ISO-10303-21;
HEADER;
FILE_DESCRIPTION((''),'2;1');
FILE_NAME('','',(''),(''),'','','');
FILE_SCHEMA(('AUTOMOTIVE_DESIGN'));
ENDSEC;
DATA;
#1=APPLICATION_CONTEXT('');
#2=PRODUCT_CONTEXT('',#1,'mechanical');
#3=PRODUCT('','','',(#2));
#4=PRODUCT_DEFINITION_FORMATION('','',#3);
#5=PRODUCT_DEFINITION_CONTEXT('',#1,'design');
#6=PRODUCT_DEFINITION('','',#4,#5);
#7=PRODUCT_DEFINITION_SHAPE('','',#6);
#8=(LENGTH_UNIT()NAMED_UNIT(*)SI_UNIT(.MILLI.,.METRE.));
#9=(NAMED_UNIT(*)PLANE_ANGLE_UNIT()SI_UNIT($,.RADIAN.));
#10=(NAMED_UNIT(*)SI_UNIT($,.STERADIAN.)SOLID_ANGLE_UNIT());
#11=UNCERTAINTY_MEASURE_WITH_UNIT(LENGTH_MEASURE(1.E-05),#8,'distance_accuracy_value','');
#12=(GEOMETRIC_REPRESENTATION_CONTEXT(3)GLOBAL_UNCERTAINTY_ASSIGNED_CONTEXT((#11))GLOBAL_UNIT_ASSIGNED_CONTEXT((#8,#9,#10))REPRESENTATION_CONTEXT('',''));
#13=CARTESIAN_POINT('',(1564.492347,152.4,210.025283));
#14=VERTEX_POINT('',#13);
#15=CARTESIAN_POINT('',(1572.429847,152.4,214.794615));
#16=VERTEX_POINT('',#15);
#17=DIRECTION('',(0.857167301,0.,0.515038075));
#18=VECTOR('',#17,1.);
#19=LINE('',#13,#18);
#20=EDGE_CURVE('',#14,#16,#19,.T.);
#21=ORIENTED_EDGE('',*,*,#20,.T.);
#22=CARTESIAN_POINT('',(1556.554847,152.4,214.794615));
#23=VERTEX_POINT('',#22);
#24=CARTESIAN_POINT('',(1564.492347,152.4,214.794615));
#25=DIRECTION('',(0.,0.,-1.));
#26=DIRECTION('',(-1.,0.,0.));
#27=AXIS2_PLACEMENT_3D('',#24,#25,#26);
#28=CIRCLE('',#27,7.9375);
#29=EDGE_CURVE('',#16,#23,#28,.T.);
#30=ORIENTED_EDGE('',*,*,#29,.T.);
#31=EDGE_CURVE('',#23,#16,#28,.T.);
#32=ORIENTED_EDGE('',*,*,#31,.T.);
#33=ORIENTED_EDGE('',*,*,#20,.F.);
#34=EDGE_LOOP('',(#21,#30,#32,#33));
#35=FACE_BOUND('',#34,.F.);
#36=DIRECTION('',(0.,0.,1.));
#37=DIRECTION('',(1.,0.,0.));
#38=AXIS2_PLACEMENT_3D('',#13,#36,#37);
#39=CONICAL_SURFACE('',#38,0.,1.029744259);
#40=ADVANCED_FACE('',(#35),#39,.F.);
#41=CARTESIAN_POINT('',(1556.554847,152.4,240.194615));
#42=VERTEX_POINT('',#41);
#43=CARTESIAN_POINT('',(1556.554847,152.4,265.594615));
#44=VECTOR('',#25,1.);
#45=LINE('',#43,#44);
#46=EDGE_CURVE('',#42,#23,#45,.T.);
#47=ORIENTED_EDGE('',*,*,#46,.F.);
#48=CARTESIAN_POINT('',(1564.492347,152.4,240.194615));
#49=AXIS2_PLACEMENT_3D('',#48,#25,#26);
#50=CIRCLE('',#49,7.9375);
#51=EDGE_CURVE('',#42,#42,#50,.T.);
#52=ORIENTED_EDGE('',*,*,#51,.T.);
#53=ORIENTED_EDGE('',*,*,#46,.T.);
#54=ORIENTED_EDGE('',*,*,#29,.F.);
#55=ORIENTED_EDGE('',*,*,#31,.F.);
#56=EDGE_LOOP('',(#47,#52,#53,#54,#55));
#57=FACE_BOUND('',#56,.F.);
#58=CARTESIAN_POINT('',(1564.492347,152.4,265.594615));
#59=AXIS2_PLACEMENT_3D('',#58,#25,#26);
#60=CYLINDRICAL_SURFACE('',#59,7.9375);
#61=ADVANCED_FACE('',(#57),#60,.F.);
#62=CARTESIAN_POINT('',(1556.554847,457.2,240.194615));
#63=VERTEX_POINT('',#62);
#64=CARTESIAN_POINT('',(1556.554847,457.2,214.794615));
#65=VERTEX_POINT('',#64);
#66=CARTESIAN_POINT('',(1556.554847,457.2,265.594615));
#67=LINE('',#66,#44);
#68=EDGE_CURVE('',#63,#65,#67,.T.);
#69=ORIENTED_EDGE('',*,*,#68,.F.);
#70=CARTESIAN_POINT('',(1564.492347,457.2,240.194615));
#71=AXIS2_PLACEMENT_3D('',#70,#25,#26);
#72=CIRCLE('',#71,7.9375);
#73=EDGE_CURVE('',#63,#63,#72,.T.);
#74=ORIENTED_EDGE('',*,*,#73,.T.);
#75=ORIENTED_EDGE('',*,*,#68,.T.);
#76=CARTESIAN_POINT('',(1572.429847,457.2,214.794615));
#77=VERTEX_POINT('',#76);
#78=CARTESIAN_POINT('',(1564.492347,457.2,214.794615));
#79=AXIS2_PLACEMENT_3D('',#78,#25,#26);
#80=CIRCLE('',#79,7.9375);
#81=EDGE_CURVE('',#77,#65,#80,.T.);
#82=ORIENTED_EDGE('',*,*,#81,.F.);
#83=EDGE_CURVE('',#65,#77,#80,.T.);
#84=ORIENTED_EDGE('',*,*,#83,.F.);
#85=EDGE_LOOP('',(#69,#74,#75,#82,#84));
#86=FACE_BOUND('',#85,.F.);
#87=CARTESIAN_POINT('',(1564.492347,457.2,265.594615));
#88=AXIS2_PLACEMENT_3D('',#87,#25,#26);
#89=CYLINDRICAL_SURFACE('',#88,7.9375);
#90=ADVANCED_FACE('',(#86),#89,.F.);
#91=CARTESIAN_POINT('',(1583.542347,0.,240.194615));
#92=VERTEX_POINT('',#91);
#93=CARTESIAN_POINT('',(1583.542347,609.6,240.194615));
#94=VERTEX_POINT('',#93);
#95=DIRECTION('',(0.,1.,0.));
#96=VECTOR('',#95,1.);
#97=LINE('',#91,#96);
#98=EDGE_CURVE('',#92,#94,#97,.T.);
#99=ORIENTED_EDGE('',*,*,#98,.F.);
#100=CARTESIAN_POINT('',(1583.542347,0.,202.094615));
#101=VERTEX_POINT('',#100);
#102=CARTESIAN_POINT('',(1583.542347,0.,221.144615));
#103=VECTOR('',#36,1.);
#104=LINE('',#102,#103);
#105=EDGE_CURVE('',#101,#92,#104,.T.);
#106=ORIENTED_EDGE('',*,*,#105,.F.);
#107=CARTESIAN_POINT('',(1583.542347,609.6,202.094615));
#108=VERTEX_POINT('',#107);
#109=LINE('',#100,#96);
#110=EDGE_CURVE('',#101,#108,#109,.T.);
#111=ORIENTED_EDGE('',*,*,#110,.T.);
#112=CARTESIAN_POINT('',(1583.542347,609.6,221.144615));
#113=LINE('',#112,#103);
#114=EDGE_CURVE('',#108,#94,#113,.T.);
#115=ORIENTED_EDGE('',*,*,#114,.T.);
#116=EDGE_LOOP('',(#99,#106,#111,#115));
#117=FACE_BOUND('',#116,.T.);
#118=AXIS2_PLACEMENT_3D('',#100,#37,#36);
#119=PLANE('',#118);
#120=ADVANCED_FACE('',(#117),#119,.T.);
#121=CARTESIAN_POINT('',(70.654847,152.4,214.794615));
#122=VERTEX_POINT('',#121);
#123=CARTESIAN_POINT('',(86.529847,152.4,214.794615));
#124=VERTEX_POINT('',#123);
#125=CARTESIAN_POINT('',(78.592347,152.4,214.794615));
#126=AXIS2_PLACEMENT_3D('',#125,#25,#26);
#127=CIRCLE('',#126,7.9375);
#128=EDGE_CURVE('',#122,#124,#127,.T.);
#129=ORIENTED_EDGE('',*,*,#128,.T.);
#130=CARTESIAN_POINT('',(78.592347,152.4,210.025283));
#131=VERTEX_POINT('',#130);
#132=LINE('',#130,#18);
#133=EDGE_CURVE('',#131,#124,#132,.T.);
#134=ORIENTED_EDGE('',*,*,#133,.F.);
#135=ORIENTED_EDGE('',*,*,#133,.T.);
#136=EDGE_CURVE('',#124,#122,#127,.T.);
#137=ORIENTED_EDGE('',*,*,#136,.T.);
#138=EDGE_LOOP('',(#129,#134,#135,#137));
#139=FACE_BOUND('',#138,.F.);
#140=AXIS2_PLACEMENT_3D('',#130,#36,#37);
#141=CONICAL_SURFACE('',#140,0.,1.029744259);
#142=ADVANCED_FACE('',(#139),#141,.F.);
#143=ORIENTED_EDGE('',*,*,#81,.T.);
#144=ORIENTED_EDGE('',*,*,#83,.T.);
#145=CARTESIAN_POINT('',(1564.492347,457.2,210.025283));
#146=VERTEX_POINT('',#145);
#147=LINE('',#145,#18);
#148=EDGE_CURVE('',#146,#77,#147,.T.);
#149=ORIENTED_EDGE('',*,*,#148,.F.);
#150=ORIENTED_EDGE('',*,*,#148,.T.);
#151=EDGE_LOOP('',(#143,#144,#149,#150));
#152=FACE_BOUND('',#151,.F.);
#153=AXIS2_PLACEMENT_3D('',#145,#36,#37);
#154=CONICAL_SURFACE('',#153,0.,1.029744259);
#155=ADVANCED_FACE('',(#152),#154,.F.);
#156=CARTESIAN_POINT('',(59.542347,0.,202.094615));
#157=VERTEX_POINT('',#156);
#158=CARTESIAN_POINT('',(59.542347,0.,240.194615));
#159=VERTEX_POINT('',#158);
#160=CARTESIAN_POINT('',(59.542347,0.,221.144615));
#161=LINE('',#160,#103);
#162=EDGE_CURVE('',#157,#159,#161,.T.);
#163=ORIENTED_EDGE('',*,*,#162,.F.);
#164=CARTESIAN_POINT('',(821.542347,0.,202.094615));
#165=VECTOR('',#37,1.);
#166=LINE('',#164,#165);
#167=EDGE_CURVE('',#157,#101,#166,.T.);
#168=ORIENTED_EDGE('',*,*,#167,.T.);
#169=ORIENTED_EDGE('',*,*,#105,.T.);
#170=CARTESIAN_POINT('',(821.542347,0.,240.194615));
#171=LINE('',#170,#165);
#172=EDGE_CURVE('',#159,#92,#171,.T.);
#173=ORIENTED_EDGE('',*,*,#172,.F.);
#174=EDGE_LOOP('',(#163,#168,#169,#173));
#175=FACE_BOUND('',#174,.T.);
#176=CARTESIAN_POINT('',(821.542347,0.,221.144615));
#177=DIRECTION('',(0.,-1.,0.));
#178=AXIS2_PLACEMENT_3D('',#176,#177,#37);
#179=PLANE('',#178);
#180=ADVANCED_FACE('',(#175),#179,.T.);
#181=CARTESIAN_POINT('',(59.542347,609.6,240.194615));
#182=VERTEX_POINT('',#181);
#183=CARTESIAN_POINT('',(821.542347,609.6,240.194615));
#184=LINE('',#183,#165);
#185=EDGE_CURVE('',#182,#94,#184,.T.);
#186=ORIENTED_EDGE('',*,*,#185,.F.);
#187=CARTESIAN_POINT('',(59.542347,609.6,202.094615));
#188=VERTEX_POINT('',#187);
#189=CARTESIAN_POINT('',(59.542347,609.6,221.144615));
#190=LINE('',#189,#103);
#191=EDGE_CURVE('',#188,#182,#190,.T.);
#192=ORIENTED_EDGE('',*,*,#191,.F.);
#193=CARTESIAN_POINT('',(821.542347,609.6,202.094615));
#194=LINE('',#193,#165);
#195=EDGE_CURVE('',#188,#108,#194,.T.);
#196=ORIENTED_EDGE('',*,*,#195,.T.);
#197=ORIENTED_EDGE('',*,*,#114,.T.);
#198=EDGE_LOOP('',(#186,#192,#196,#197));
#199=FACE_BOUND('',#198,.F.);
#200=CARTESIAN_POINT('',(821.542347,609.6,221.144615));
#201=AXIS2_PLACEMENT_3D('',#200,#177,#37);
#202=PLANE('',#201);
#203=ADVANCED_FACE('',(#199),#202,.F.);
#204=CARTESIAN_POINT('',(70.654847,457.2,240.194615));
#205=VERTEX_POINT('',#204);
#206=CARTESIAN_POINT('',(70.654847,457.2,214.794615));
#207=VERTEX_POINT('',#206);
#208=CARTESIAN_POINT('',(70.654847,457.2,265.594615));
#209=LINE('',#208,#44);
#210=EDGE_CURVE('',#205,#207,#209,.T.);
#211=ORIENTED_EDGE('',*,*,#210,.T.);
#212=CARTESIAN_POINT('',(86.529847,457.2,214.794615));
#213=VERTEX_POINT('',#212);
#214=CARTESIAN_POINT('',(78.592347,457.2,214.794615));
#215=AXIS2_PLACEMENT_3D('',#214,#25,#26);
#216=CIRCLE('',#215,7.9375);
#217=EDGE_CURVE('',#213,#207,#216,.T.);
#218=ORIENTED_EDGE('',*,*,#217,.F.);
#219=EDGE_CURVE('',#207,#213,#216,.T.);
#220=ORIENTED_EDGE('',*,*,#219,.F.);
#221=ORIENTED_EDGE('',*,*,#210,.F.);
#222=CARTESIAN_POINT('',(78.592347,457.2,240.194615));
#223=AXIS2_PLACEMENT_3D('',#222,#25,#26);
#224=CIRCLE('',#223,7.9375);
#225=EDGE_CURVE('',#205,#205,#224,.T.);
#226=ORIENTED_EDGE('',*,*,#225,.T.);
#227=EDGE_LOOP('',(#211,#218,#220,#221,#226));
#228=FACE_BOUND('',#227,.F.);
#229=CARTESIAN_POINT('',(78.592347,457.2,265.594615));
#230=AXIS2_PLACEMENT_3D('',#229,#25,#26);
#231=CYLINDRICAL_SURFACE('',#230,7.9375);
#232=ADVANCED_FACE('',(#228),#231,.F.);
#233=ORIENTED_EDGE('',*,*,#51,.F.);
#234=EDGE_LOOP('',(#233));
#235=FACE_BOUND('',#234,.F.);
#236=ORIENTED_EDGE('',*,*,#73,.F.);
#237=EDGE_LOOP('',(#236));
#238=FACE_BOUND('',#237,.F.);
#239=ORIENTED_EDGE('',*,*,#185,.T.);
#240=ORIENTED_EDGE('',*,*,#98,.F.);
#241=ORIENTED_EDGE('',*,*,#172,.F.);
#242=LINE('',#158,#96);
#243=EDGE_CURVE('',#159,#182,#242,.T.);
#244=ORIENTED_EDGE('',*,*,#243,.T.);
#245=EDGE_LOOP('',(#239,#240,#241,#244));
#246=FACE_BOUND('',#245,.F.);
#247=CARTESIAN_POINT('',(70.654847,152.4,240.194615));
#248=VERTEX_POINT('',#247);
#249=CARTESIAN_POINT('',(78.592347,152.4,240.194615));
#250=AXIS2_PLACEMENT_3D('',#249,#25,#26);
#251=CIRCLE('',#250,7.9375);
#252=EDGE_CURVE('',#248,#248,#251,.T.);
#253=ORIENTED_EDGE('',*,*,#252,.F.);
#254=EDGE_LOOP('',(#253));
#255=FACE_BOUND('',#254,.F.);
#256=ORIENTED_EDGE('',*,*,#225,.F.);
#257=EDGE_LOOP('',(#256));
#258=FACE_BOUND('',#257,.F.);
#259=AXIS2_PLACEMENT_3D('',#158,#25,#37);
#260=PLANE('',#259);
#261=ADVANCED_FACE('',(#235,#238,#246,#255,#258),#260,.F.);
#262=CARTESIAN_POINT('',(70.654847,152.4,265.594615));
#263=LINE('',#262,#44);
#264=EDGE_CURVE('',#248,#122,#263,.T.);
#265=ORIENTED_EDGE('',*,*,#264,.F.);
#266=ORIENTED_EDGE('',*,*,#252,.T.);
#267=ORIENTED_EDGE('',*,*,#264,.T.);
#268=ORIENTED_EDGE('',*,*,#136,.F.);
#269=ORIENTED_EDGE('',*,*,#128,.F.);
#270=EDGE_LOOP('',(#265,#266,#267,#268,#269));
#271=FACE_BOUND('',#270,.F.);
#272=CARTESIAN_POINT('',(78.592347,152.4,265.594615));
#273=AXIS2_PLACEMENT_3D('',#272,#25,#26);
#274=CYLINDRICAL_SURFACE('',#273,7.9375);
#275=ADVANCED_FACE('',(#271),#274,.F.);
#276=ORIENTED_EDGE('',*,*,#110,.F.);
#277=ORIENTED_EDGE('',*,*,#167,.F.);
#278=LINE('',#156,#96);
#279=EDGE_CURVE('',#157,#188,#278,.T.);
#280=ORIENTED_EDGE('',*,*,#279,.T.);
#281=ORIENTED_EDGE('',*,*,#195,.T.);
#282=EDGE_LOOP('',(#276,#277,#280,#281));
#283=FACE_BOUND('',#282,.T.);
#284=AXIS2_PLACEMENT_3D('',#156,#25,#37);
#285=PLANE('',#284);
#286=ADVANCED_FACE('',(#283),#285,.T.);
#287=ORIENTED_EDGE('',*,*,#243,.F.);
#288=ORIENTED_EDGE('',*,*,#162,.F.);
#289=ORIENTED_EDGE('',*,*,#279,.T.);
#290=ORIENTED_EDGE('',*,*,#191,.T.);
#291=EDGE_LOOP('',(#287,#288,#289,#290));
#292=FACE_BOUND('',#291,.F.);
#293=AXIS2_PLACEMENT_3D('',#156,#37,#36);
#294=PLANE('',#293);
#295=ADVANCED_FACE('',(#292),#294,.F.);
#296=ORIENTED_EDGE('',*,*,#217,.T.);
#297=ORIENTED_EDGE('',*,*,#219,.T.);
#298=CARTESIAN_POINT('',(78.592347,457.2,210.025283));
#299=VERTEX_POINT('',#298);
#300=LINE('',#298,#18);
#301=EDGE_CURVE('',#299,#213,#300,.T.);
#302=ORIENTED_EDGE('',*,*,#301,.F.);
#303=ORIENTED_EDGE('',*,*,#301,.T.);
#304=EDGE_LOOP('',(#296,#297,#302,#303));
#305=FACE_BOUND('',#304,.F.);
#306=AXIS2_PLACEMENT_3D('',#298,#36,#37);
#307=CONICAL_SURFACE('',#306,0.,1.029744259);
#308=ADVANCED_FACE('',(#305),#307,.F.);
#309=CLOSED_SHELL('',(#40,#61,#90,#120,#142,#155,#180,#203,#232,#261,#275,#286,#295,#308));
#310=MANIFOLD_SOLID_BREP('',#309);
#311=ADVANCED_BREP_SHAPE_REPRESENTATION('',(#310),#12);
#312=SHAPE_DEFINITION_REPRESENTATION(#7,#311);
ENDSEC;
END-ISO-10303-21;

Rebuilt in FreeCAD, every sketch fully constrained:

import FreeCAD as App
import Part
import Sketcher
from FreeCAD import Vector
Q = App.Units.Quantity

doc = App.newDocument("Part")
body = doc.addObject("PartDesign::Body", "Body")

# Sketch on XZ plane
sketch1 = body.newObject("Sketcher::SketchObject", "Sketch")
sketch1.AttachmentSupport = (doc.getObject("XZ_Plane"), [""])
sketch1.MapMode = "FlatFace"
sketch1.addGeometry([
    Part.LineSegment(Vector(59.542347, 240.194615, 0), Vector(59.542347, 202.094615, 0)),
    Part.LineSegment(Vector(59.542347, 202.094615, 0), Vector(1583.542347, 202.094615, 0)),
    Part.LineSegment(Vector(1583.542347, 202.094615, 0), Vector(1583.542347, 240.194615, 0)),
    Part.LineSegment(Vector(1583.542347, 240.194615, 0), Vector(59.542347, 240.194615, 0)),
], False)
sketch1.addConstraint([
    Sketcher.Constraint("Coincident", 0, 2, 1, 1),
    Sketcher.Constraint("Coincident", 1, 2, 2, 1),
    Sketcher.Constraint("Coincident", 2, 2, 3, 1),
    Sketcher.Constraint("Coincident", 3, 2, 0, 1),
    Sketcher.Constraint("Vertical", 0),
    Sketcher.Constraint("Horizontal", 1),
    Sketcher.Constraint("Vertical", 2),
    Sketcher.Constraint("Horizontal", 3),
    Sketcher.Constraint("DistanceX", 1, 1, 1, 2, Q("60 in")),
    Sketcher.Constraint("DistanceY", 0, 2, 0, 1, Q("1.5 in")),
    Sketcher.Constraint("DistanceX", -1, 1, 0, 2, 59.542347),
    Sketcher.Constraint("DistanceY", -1, 1, 0, 2, 202.094615),
])
pad1 = body.newObject("PartDesign::Pad", "Pad")
pad1.Profile = sketch1
pad1.Length = Q("24 in")
pad1.Reversed = True

# Sketch on XY plane
sketch2 = body.newObject("Sketcher::SketchObject", "Sketch001")
sketch2.AttachmentSupport = (doc.getObject("XY_Plane"), [""])
sketch2.MapMode = "FlatFace"
sketch2.AttachmentOffset = App.Placement(Vector(0, 0, 240.194615), App.Rotation())
sketch2.addGeometry([
    Part.Circle(Vector(78.592347, 457.2, 0), Vector(0, 0, 1), 7.9375),
    Part.Circle(Vector(78.592347, 152.4, 0), Vector(0, 0, 1), 7.9375),
    Part.Circle(Vector(1564.492347, 457.2, 0), Vector(0, 0, 1), 7.9375),
    Part.Circle(Vector(1564.492347, 152.4, 0), Vector(0, 0, 1), 7.9375),
], False)
sketch2.addConstraint([
    Sketcher.Constraint("Equal", 0, 1),
    Sketcher.Constraint("Equal", 1, 2),
    Sketcher.Constraint("Equal", 2, 3),
    Sketcher.Constraint("Horizontal", 0, 3, 2, 3),
    Sketcher.Constraint("Horizontal", 1, 3, 3, 3),
    Sketcher.Constraint("Vertical", 0, 3, 1, 3),
    Sketcher.Constraint("Vertical", 2, 3, 3, 3),
    Sketcher.Constraint("Diameter", 0, Q("0.625 in")),
    Sketcher.Constraint("DistanceY", -1, 1, 0, 3, Q("18 in")),
    Sketcher.Constraint("DistanceY", -1, 1, 1, 3, Q("6 in")),
    Sketcher.Constraint("DistanceX", 0, 3, 2, 3, Q("58.5 in")),
    Sketcher.Constraint("DistanceX", -1, 1, 0, 3, 78.592347),
])
doc.recompute()
hole = body.newObject("PartDesign::Hole", "Hole")
hole.Profile = sketch2
hole.ThreadType = "None"
hole.Diameter = Q("0.625 in")
hole.DepthType = "Dimension"
hole.Depth = Q("1 in")
hole.DrillPoint = "Angled"
hole.DrillPointAngle = 118

doc.recompute()
